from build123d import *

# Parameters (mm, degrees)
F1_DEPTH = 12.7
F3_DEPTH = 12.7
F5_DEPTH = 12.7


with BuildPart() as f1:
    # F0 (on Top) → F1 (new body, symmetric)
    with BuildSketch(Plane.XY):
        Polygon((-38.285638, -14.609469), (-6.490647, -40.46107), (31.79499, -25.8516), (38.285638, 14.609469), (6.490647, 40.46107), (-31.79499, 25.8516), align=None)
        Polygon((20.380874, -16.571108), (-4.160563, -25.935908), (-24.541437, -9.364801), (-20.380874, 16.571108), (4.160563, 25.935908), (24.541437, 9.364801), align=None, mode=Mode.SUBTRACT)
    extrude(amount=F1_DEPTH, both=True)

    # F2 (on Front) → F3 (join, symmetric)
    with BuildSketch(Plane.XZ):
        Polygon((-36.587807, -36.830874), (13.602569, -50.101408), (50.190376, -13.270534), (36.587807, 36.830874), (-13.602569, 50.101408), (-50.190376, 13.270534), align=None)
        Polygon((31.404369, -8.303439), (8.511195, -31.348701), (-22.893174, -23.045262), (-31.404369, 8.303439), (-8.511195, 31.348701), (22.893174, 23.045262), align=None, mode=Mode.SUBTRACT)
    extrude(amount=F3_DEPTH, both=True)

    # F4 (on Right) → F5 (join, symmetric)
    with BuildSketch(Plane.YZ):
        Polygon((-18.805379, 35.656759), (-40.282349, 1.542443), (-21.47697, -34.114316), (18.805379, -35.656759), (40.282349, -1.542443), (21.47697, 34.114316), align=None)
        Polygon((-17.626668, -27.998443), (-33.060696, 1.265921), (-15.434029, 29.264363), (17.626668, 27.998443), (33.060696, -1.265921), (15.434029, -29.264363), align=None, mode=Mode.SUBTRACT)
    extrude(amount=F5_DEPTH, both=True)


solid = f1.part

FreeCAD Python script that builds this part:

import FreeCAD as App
import Part
import Sketcher

V = App.Vector
Q = App.Units.Quantity

doc = App.newDocument("Part")
body = doc.addObject("PartDesign::Body", "Body")

sketch1 = body.newObject("Sketcher::SketchObject", "Sketch")
sketch1.AttachmentSupport = (doc.getObject("XY_Plane"), [""])
sketch1.MapMode = "FlatFace"
sketch1.addGeometry(Part.LineSegment(V(-38.285638, -14.609469, 0), V(-6.490647, -40.46107, 0)), False)
sketch1.addGeometry(Part.LineSegment(V(-6.490647, -40.46107, 0), V(31.79499, -25.8516, 0)), False)
sketch1.addGeometry(Part.LineSegment(V(31.79499, -25.8516, 0), V(38.285638, 14.609469, 0)), False)
sketch1.addGeometry(Part.LineSegment(V(38.285638, 14.609469, 0), V(6.490647, 40.46107, 0)), False)
sketch1.addGeometry(Part.LineSegment(V(6.490647, 40.46107, 0), V(-31.79499, 25.8516, 0)), False)
sketch1.addGeometry(Part.LineSegment(V(-31.79499, 25.8516, 0), V(-38.285638, -14.609469, 0)), False)
sketch1.addGeometry(Part.LineSegment(V(24.541437, 9.364801, 0), V(20.380874, -16.571108, 0)), False)
sketch1.addGeometry(Part.LineSegment(V(20.380874, -16.571108, 0), V(-4.160563, -25.935908, 0)), False)
sketch1.addGeometry(Part.LineSegment(V(-4.160563, -25.935908, 0), V(-24.541437, -9.364801, 0)), False)
sketch1.addGeometry(Part.LineSegment(V(-24.541437, -9.364801, 0), V(-20.380874, 16.571108, 0)), False)
sketch1.addGeometry(Part.LineSegment(V(-20.380874, 16.571108, 0), V(4.160563, 25.935908, 0)), False)
sketch1.addGeometry(Part.LineSegment(V(4.160563, 25.935908, 0), V(24.541437, 9.364801, 0)), False)
sketch1.addConstraint(Sketcher.Constraint("Coincident", 0, 2, 1, 1))
sketch1.addConstraint(Sketcher.Constraint("Coincident", 1, 2, 2, 1))
sketch1.addConstraint(Sketcher.Constraint("Coincident", 2, 2, 3, 1))
sketch1.addConstraint(Sketcher.Constraint("Coincident", 3, 2, 4, 1))
sketch1.addConstraint(Sketcher.Constraint("Coincident", 4, 2, 5, 1))
sketch1.addConstraint(Sketcher.Constraint("Coincident", 5, 2, 0, 1))
sketch1.addConstraint(Sketcher.Constraint("Coincident", 6, 2, 7, 1))
sketch1.addConstraint(Sketcher.Constraint("Coincident", 7, 2, 8, 1))
sketch1.addConstraint(Sketcher.Constraint("Coincident", 8, 2, 9, 1))
sketch1.addConstraint(Sketcher.Constraint("Coincident", 9, 2, 10, 1))
sketch1.addConstraint(Sketcher.Constraint("Coincident", 10, 2, 11, 1))
sketch1.addConstraint(Sketcher.Constraint("Coincident", 11, 2, 6, 1))
sketch1.addConstraint(Sketcher.Constraint("Symmetric", 0, 2, 3, 2, -1, 1))
sketch1.addConstraint(Sketcher.Constraint("Symmetric", 1, 2, 4, 2, -1, 1))
sketch1.addConstraint(Sketcher.Constraint("Symmetric", 2, 2, 5, 2, -1, 1))
sketch1.addConstraint(Sketcher.Constraint("Symmetric", 6, 2, 9, 2, -1, 1))
sketch1.addConstraint(Sketcher.Constraint("Symmetric", 7, 2, 10, 2, -1, 1))
sketch1.addConstraint(Sketcher.Constraint("Symmetric", 8, 2, 11, 2, -1, 1))
sketch1.addConstraint(Sketcher.Constraint("Parallel", 5, 6))
sketch1.addConstraint(Sketcher.Constraint("Parallel", 4, 7))
sketch1.addConstraint(Sketcher.Constraint("Parallel", 3, 8))
sketch1.addConstraint(Sketcher.Constraint("Equal", 0, 1))
sketch1.addConstraint(Sketcher.Constraint("Equal", 1, 2))
sketch1.addConstraint(Sketcher.Constraint("Equal", 6, 7))
sketch1.addConstraint(Sketcher.Constraint("Equal", 7, 8))
sketch1.addConstraint(Sketcher.Constraint("DistanceX", 8, 2, 10, 2, Q("1.13 in")))
sketch1.addConstraint(Sketcher.Constraint("Distance", 6, Q("26.267502 mm")))
sketch1.addConstraint(Sketcher.Constraint("DistanceY", 1, 2, -1, 1, Q("25.8516 mm")))
sketch1.addConstraint(Sketcher.Constraint("DistanceY", 8, 2, -1, 1, Q("9.364801 mm")))
sketch1.addConstraint(Sketcher.Constraint("DistanceY", 2, 2, 3, 2, Q("25.851601 mm")))
pad1 = body.newObject("PartDesign::Pad", "Pad")
pad1.Profile = sketch1
pad1.Length = Q("1 in")
pad1.Midplane = True

sketch2 = body.newObject("Sketcher::SketchObject", "Sketch001")
sketch2.AttachmentSupport = (doc.getObject("XZ_Plane"), [""])
sketch2.MapMode = "FlatFace"
sketch2.addGeometry(Part.LineSegment(V(-36.587807, -36.830874, 0), V(13.602569, -50.101408, 0)), False)
sketch2.addGeometry(Part.LineSegment(V(13.602569, -50.101408, 0), V(50.190376, -13.270534, 0)), False)
sketch2.addGeometry(Part.LineSegment(V(50.190376, -13.270534, 0), V(36.587807, 36.830874, 0)), False)
sketch2.addGeometry(Part.LineSegment(V(36.587807, 36.830874, 0), V(-13.602569, 50.101408, 0)), False)
sketch2.addGeometry(Part.LineSegment(V(-13.602569, 50.101408, 0), V(-50.190376, 13.270534, 0)), False)
sketch2.addGeometry(Part.LineSegment(V(-50.190376, 13.270534, 0), V(-36.587807, -36.830874, 0)), False)
sketch2.addGeometry(Part.LineSegment(V(22.893174, 23.045262, 0), V(31.404369, -8.303439, 0)), False)
sketch2.addGeometry(Part.LineSegment(V(31.404369, -8.303439, 0), V(8.511195, -31.348701, 0)), False)
sketch2.addGeometry(Part.LineSegment(V(8.511195, -31.348701, 0), V(-22.893174, -23.045262, 0)), False)
sketch2.addGeometry(Part.LineSegment(V(-22.893174, -23.045262, 0), V(-31.404369, 8.303439, 0)), False)
sketch2.addGeometry(Part.LineSegment(V(-31.404369, 8.303439, 0), V(-8.511195, 31.348701, 0)), False)
sketch2.addGeometry(Part.LineSegment(V(-8.511195, 31.348701, 0), V(22.893174, 23.045262, 0)), False)
sketch2.addConstraint(Sketcher.Constraint("Coincident", 0, 2, 1, 1))
sketch2.addConstraint(Sketcher.Constraint("Coincident", 1, 2, 2, 1))
sketch2.addConstraint(Sketcher.Constraint("Coincident", 2, 2, 3, 1))
sketch2.addConstraint(Sketcher.Constraint("Coincident", 3, 2, 4, 1))
sketch2.addConstraint(Sketcher.Constraint("Coincident", 4, 2, 5, 1))
sketch2.addConstraint(Sketcher.Constraint("Coincident", 5, 2, 0, 1))
sketch2.addConstraint(Sketcher.Constraint("Coincident", 6, 2, 7, 1))
sketch2.addConstraint(Sketcher.Constraint("Coincident", 7, 2, 8, 1))
sketch2.addConstraint(Sketcher.Constraint("Coincident", 8, 2, 9, 1))
sketch2.addConstraint(Sketcher.Constraint("Coincident", 9, 2, 10, 1))
sketch2.addConstraint(Sketcher.Constraint("Coincident", 10, 2, 11, 1))
sketch2.addConstraint(Sketcher.Constraint("Coincident", 11, 2, 6, 1))
sketch2.addConstraint(Sketcher.Constraint("Symmetric", 0, 2, 3, 2, -1, 1))
sketch2.addConstraint(Sketcher.Constraint("Symmetric", 1, 2, 4, 2, -1, 1))
sketch2.addConstraint(Sketcher.Constraint("Symmetric", 2, 2, 5, 2, -1, 1))
sketch2.addConstraint(Sketcher.Constraint("Symmetric", 6, 2, 9, 2, -1, 1))
sketch2.addConstraint(Sketcher.Constraint("Symmetric", 7, 2, 10, 2, -1, 1))
sketch2.addConstraint(Sketcher.Constraint("Symmetric", 8, 2, 11, 2, -1, 1))
sketch2.addConstraint(Sketcher.Constraint("Parallel", 5, 6))
sketch2.addConstraint(Sketcher.Constraint("Parallel", 4, 7))
sketch2.addConstraint(Sketcher.Constraint("Parallel", 3, 8))
sketch2.addConstraint(Sketcher.Constraint("Equal", 0, 1))
sketch2.addConstraint(Sketcher.Constraint("Equal", 1, 2))
sketch2.addConstraint(Sketcher.Constraint("Equal", 6, 7))
sketch2.addConstraint(Sketcher.Constraint("Equal", 7, 8))
sketch2.addConstraint(Sketcher.Constraint("DistanceY", 7, 2, -1, 1, Q("31.348701 mm")))
sketch2.addConstraint(Sketcher.Constraint("DistanceX", 0, 2, 6, 2, Q("17.8018 mm")))
sketch2.addConstraint(Sketcher.Constraint("DistanceY", 8, 2, 9, 2, Q("31.348701 mm")))
sketch2.addConstraint(Sketcher.Constraint("Distance", 0, Q("51.915132 mm")))
sketch2.addConstraint(Sketcher.Constraint("DistanceX", -1, 1, 0, 2, Q("13.602569 mm")))
pad2 = body.newObject("PartDesign::Pad", "Pad001")
pad2.Profile = sketch2
pad2.Length = Q("1 in")
pad2.Midplane = True

sketch3 = body.newObject("Sketcher::SketchObject", "Sketch002")
sketch3.AttachmentSupport = (doc.getObject("YZ_Plane"), [""])
sketch3.MapMode = "FlatFace"
sketch3.addGeometry(Part.LineSegment(V(-18.805379, 35.656759, 0), V(-40.282349, 1.542443, 0)), False)
sketch3.addGeometry(Part.LineSegment(V(-40.282349, 1.542443, 0), V(-21.47697, -34.114316, 0)), False)
sketch3.addGeometry(Part.LineSegment(V(-21.47697, -34.114316, 0), V(18.805379, -35.656759, 0)), False)
sketch3.addGeometry(Part.LineSegment(V(18.805379, -35.656759, 0), V(40.282349, -1.542443, 0)), False)
sketch3.addGeometry(Part.LineSegment(V(40.282349, -1.542443, 0), V(21.47697, 34.114316, 0)), False)
sketch3.addGeometry(Part.LineSegment(V(21.47697, 34.114316, 0), V(-18.805379, 35.656759, 0)), False)
sketch3.addGeometry(Part.LineSegment(V(15.434029, -29.264363, 0), V(-17.626668, -27.998443, 0)), False)
sketch3.addGeometry(Part.LineSegment(V(-17.626668, -27.998443, 0), V(-33.060696, 1.265921, 0)), False)
sketch3.addGeometry(Part.LineSegment(V(-33.060696, 1.265921, 0), V(-15.434029, 29.264363, 0)), False)
sketch3.addGeometry(Part.LineSegment(V(-15.434029, 29.264363, 0), V(17.626668, 27.998443, 0)), False)
sketch3.addGeometry(Part.LineSegment(V(17.626668, 27.998443, 0), V(33.060696, -1.265921, 0)), False)
sketch3.addGeometry(Part.LineSegment(V(33.060696, -1.265921, 0), V(15.434029, -29.264363, 0)), False)
sketch3.addConstraint(Sketcher.Constraint("Coincident", 0, 2, 1, 1))
sketch3.addConstraint(Sketcher.Constraint("Coincident", 1, 2, 2, 1))
sketch3.addConstraint(Sketcher.Constraint("Coincident", 2, 2, 3, 1))
sketch3.addConstraint(Sketcher.Constraint("Coincident", 3, 2, 4, 1))
sketch3.addConstraint(Sketcher.Constraint("Coincident", 4, 2, 5, 1))
sketch3.addConstraint(Sketcher.Constraint("Coincident", 5, 2, 0, 1))
sketch3.addConstraint(Sketcher.Constraint("Coincident", 6, 2, 7, 1))
sketch3.addConstraint(Sketcher.Constraint("Coincident", 7, 2, 8, 1))
sketch3.addConstraint(Sketcher.Constraint("Coincident", 8, 2, 9, 1))
sketch3.addConstraint(Sketcher.Constraint("Coincident", 9, 2, 10, 1))
sketch3.addConstraint(Sketcher.Constraint("Coincident", 10, 2, 11, 1))
sketch3.addConstraint(Sketcher.Constraint("Coincident", 11, 2, 6, 1))
sketch3.addConstraint(Sketcher.Constraint("Symmetric", 0, 2, 3, 2, -1, 1))
sketch3.addConstraint(Sketcher.Constraint("Symmetric", 1, 2, 4, 2, -1, 1))
sketch3.addConstraint(Sketcher.Constraint("Symmetric", 2, 2, 5, 2, -1, 1))
sketch3.addConstraint(Sketcher.Constraint("Symmetric", 6, 2, 9, 2, -1, 1))
sketch3.addConstraint(Sketcher.Constraint("Symmetric", 7, 2, 10, 2, -1, 1))
sketch3.addConstraint(Sketcher.Constraint("Symmetric", 8, 2, 11, 2, -1, 1))
sketch3.addConstraint(Sketcher.Constraint("Parallel", 5, 6))
sketch3.addConstraint(Sketcher.Constraint("Parallel", 4, 7))
sketch3.addConstraint(Sketcher.Constraint("Parallel", 3, 8))
sketch3.addConstraint(Sketcher.Constraint("Equal", 0, 1))
sketch3.addConstraint(Sketcher.Constraint("Equal", 1, 2))
sketch3.addConstraint(Sketcher.Constraint("Equal", 6, 7))
sketch3.addConstraint(Sketcher.Constraint("Equal", 7, 8))
sketch3.addConstraint(Sketcher.Constraint("DistanceX", 1, 2, 4, 2, Q("1.6911 in")))
sketch3.addConstraint(Sketcher.Constraint("DistanceX", 0, 2, 3, 2, Q("80.564698 mm")))
sketch3.addConstraint(Sketcher.Constraint("DistanceY", 6, 2, 3, 2, Q("26.456 mm")))
sketch3.addConstraint(Sketcher.Constraint("DistanceX", 8, 2, 4, 2, Q("36.910999 mm")))
sketch3.addConstraint(Sketcher.Constraint("Distance", 0, Q("40.311869 mm")))
pad3 = body.newObject("PartDesign::Pad", "Pad002")
pad3.Profile = sketch3
pad3.Length = Q("1 in")
pad3.Midplane = True

doc.recompute()
